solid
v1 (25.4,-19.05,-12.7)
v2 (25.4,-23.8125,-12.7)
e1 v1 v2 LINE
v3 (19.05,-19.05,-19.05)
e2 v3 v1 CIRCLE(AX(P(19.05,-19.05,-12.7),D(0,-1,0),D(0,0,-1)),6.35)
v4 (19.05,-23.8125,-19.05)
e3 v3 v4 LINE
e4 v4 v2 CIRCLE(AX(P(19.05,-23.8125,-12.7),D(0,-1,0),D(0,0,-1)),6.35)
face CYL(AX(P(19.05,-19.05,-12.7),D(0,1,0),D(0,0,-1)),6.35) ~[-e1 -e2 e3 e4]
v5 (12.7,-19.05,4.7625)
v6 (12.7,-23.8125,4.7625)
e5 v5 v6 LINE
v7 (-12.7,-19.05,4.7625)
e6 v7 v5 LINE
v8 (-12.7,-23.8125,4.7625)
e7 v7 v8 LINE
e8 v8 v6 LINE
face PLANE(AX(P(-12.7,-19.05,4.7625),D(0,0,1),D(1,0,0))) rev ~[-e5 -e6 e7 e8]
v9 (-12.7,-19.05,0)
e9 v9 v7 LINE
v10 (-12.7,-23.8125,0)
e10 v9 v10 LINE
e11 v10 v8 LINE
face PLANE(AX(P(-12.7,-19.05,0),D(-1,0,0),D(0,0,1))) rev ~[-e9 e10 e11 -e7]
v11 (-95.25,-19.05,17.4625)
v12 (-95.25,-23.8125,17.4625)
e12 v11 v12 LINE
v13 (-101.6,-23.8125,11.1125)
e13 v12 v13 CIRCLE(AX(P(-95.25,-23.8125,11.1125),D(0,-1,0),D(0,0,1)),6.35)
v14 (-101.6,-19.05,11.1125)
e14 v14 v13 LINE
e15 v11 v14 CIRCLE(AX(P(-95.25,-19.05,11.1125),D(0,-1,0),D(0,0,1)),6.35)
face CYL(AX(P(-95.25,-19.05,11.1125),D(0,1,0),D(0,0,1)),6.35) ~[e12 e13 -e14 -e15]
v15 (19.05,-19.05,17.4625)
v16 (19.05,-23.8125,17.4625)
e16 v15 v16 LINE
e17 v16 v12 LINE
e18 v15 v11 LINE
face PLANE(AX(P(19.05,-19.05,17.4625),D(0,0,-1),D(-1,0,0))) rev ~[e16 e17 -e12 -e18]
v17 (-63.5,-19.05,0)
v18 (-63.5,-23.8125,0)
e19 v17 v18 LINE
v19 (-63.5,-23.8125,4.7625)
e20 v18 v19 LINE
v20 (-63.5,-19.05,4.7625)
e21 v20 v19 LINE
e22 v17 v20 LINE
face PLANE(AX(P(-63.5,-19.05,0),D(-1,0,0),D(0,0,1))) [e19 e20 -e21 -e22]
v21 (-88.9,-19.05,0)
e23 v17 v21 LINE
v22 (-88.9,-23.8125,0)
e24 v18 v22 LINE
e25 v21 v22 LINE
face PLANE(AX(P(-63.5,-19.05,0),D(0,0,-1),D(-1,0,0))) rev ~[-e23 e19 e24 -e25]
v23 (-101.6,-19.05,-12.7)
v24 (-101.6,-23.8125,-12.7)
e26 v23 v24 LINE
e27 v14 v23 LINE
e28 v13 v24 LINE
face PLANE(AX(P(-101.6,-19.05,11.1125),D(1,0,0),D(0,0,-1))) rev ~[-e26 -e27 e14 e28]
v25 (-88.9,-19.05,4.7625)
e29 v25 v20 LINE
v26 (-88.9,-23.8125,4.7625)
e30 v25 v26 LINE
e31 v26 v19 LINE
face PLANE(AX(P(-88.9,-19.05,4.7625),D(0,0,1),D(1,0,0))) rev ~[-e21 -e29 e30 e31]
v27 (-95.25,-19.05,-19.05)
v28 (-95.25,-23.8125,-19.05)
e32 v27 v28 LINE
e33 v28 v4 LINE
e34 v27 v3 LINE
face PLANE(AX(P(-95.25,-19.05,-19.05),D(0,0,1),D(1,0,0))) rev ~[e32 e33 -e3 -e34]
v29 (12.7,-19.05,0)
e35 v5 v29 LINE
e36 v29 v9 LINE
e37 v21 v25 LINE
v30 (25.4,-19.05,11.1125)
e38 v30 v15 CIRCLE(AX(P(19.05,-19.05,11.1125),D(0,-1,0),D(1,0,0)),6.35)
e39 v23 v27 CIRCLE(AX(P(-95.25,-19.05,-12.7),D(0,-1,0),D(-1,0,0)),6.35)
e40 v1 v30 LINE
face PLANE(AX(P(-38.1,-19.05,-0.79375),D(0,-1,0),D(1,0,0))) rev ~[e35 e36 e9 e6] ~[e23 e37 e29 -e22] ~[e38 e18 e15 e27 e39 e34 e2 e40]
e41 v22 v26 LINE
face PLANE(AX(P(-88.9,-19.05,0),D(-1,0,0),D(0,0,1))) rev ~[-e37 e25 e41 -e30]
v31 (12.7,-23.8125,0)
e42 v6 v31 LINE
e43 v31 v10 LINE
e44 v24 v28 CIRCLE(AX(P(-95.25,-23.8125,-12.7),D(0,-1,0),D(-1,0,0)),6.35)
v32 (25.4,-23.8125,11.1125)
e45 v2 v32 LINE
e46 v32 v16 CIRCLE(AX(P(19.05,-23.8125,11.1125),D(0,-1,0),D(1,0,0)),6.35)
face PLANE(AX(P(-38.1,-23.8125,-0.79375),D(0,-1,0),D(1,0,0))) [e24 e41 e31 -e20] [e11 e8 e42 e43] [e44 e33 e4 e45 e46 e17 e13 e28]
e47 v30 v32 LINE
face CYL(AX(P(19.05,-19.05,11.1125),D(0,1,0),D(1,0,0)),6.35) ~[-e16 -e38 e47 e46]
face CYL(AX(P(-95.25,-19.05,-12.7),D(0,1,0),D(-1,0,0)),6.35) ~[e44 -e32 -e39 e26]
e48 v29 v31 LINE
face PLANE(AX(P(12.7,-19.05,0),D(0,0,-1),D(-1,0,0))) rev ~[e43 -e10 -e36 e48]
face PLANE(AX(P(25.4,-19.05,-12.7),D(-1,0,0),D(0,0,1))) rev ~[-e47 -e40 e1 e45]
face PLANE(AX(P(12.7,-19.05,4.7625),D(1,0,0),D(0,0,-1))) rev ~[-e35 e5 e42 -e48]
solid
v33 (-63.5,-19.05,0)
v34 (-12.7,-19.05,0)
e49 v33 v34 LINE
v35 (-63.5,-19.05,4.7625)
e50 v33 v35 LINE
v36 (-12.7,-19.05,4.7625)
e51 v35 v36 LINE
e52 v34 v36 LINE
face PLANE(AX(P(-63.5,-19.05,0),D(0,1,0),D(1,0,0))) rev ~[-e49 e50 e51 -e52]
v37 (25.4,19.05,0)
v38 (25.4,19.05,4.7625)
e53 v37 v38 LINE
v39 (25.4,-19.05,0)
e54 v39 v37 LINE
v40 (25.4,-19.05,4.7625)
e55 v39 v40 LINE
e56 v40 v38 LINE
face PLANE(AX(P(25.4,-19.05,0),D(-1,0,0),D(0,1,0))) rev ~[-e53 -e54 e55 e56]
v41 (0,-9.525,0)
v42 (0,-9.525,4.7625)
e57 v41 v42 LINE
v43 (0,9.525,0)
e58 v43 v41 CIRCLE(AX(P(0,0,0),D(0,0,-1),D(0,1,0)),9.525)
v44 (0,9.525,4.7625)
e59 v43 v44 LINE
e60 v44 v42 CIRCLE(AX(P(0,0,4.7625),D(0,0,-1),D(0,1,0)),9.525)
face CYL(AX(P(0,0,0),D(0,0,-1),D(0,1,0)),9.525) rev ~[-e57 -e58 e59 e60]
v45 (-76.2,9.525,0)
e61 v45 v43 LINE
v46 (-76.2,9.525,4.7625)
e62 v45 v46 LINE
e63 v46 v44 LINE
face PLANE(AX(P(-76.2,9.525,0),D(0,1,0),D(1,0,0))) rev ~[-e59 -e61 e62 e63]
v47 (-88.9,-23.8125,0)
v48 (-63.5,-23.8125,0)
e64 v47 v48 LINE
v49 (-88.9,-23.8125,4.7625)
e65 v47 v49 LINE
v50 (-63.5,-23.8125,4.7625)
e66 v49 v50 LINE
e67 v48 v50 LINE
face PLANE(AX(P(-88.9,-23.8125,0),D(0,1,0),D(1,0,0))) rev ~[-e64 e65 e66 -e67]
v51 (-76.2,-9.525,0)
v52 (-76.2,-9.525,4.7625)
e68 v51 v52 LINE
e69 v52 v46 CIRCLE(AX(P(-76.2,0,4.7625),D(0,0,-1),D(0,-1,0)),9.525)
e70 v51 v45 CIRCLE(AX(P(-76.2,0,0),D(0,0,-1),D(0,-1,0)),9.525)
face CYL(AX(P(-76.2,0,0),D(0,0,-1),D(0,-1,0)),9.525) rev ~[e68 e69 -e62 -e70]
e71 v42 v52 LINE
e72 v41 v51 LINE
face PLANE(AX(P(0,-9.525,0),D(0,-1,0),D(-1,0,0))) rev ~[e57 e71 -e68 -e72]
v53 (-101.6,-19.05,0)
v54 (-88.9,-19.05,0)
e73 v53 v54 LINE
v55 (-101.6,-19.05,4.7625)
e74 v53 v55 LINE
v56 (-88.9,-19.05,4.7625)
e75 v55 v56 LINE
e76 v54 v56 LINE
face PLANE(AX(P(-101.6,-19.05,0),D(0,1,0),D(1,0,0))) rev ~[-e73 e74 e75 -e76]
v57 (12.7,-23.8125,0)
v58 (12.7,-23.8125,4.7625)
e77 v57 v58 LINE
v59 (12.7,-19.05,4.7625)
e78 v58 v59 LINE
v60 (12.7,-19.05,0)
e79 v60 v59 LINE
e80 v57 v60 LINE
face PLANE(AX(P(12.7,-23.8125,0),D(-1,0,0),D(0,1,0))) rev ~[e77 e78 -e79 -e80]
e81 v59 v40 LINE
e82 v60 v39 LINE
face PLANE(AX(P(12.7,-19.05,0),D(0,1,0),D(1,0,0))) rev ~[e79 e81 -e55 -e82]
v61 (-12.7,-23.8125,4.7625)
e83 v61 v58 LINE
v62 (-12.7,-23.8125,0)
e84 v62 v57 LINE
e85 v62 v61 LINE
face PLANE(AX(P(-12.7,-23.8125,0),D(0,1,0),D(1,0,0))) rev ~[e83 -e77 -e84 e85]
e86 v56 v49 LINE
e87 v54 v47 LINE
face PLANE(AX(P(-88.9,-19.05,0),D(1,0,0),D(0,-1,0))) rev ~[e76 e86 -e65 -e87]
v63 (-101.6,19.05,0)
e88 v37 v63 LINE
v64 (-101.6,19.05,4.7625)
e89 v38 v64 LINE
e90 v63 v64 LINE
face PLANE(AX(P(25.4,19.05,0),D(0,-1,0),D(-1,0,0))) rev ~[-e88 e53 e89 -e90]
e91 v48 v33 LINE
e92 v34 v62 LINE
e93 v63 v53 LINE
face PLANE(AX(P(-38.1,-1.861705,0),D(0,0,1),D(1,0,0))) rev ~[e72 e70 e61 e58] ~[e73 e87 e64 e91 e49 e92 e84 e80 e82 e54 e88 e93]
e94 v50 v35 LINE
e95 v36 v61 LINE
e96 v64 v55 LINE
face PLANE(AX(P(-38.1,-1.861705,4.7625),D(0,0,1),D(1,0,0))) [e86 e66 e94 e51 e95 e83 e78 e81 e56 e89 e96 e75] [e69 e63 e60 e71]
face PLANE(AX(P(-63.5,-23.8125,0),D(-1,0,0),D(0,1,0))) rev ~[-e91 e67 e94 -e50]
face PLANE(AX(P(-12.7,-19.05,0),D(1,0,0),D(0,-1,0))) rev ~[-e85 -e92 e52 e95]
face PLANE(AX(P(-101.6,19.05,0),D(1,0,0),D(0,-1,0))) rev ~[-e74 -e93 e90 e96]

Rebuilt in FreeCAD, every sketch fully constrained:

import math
import FreeCAD as App
import Part
import Sketcher
from FreeCAD import Vector
Q = App.Units.Quantity

doc = App.newDocument("Part")
body = doc.addObject("PartDesign::Body", "Body")

sketch1 = doc.addObject("Sketcher::SketchObject", "Sketch")
body.addObject(sketch1)
sketch1.AttachmentSupport = (doc.XY_Plane, [""])
sketch1.MapMode = "FlatFace"
sketch1.addGeometry(Part.LineSegment(Vector(25.4, 19.1, 0), Vector(-101.6, 19.1, 0)), False)
sketch1.addGeometry(Part.LineSegment(Vector(-101.6, 19.1, 0), Vector(-101.6, -19.1, 0)), False)
sketch1.addGeometry(Part.LineSegment(Vector(-101.6, -19.1, 0), Vector(-88.9, -19.1, 0)), False)
sketch1.addGeometry(Part.LineSegment(Vector(-88.9, -19.1, 0), Vector(-88.9, -23.8, 0)), False)
sketch1.addGeometry(Part.LineSegment(Vector(-88.9, -23.8, 0), Vector(-63.5, -23.8, 0)), False)
sketch1.addGeometry(Part.LineSegment(Vector(-63.5, -23.8, 0), Vector(-63.5, -19.1, 0)), False)
sketch1.addGeometry(Part.LineSegment(Vector(-63.5, -19.1, 0), Vector(-12.7, -19.1, 0)), False)
sketch1.addGeometry(Part.LineSegment(Vector(-12.7, -19.1, 0), Vector(-12.7, -23.8, 0)), False)
sketch1.addGeometry(Part.LineSegment(Vector(-12.7, -23.8, 0), Vector(12.7, -23.8, 0)), False)
sketch1.addGeometry(Part.LineSegment(Vector(12.7, -23.8, 0), Vector(12.7, -19.1, 0)), False)
sketch1.addGeometry(Part.LineSegment(Vector(12.7, -19.1, 0), Vector(25.4, -19.1, 0)), False)
sketch1.addGeometry(Part.LineSegment(Vector(25.4, -19.1, 0), Vector(25.4, 19.1, 0)), False)
sketch1.addGeometry(Part.LineSegment(Vector(0, -9.5, 0), Vector(-76.2, -9.5, 0)), False)
sketch1.addGeometry(Part.ArcOfCircle(Part.Circle(Vector(-76.2, 0, 0), Vector(0, 0, 1), 9.5), math.radians(90), math.radians(270)), False)
sketch1.addGeometry(Part.LineSegment(Vector(-76.2, 9.5, 0), Vector(0, 9.5, 0)), False)
sketch1.addGeometry(Part.ArcOfCircle(Part.Circle(Vector(0, 0, 0), Vector(0, 0, 1), 9.5), math.radians(-90), math.radians(90)), False)
sketch1.addConstraint(Sketcher.Constraint("Coincident", 0, 2, 1, 1))
sketch1.addConstraint(Sketcher.Constraint("Coincident", 1, 2, 2, 1))
sketch1.addConstraint(Sketcher.Constraint("Coincident", 2, 2, 3, 1))
sketch1.addConstraint(Sketcher.Constraint("Coincident", 3, 2, 4, 1))
sketch1.addConstraint(Sketcher.Constraint("Coincident", 4, 2, 5, 1))
sketch1.addConstraint(Sketcher.Constraint("Coincident", 5, 2, 6, 1))
sketch1.addConstraint(Sketcher.Constraint("Coincident", 6, 2, 7, 1))
sketch1.addConstraint(Sketcher.Constraint("Coincident", 7, 2, 8, 1))
sketch1.addConstraint(Sketcher.Constraint("Coincident", 8, 2, 9, 1))
sketch1.addConstraint(Sketcher.Constraint("Coincident", 9, 2, 10, 1))
sketch1.addConstraint(Sketcher.Constraint("Coincident", 10, 2, 11, 1))
sketch1.addConstraint(Sketcher.Constraint("Coincident", 11, 2, 0, 1))
sketch1.addConstraint(Sketcher.Constraint("Tangent", 12, 2, 13, 2))
sketch1.addConstraint(Sketcher.Constraint("Tangent", 13, 1, 14, 1))
sketch1.addConstraint(Sketcher.Constraint("Tangent", 14, 2, 15, 2))
sketch1.addConstraint(Sketcher.Constraint("Tangent", 15, 1, 12, 1))
sketch1.addConstraint(Sketcher.Constraint("Horizontal", 0))
sketch1.addConstraint(Sketcher.Constraint("Vertical", 1))
sketch1.addConstraint(Sketcher.Constraint("Horizontal", 2))
sketch1.addConstraint(Sketcher.Constraint("Vertical", 3))
sketch1.addConstraint(Sketcher.Constraint("Horizontal", 4))
sketch1.addConstraint(Sketcher.Constraint("Vertical", 5))
sketch1.addConstraint(Sketcher.Constraint("Horizontal", 6))
sketch1.addConstraint(Sketcher.Constraint("Vertical", 7))
sketch1.addConstraint(Sketcher.Constraint("Horizontal", 8))
sketch1.addConstraint(Sketcher.Constraint("Vertical", 9))
sketch1.addConstraint(Sketcher.Constraint("Horizontal", 10))
sketch1.addConstraint(Sketcher.Constraint("Vertical", 11))
sketch1.addConstraint(Sketcher.Constraint("Horizontal", 12))
sketch1.addConstraint(Sketcher.Constraint("Horizontal", 14))
sketch1.addConstraint(Sketcher.Constraint("Coincident", 15, 3, -1, 1))
sketch1.addConstraint(Sketcher.Constraint("Symmetric", 6, 2, 9, 2, -2))
sketch1.addConstraint(Sketcher.Constraint("Horizontal", 2, 2, 5, 2))
sketch1.addConstraint(Sketcher.Constraint("Horizontal", 4, 2, 7, 2))
sketch1.addConstraint(Sketcher.Constraint("Equal", 4, 8))
sketch1.addConstraint(Sketcher.Constraint("Equal", 2, 10))
sketch1.addConstraint(Sketcher.Constraint("DistanceX", 0, 2, 0, 1, Q("5 in")))
sketch1.addConstraint(Sketcher.Constraint("DistanceX", 4, 1, 4, 2, Q("1 in")))
sketch1.addConstraint(Sketcher.Constraint("DistanceX", 6, 1, 6, 2, Q("2 in")))
sketch1.addConstraint(Sketcher.Constraint("DistanceX", 12, 2, 12, 1, Q("3 in")))
sketch1.addConstraint(Sketcher.Constraint("DistanceY", 1, 2, 1, 1, Q("1.5 in")))
sketch1.addConstraint(Sketcher.Constraint("Radius", 13, Q("0.375 in")))
sketch1.addConstraint(Sketcher.Constraint("DistanceY", 3, 2, 3, 1, Q("0.1875 in")))
sketch1.addConstraint(Sketcher.Constraint("DistanceY", -1, 1, 0, 2, Q("0.75 in")))
pad1 = doc.addObject("PartDesign::Pad", "Pad")
body.addObject(pad1)
pad1.Profile = sketch1
pad1.Length = Q("0.1875 in")
body2 = doc.addObject("PartDesign::Body", "Body001")

sketch2 = doc.addObject("Sketcher::SketchObject", "Sketch001")
body2.addObject(sketch2)
sketch2.AttachmentSupport = (doc.getObject("XZ_Plane001"), [""])
sketch2.MapMode = "FlatFace"
sketch2.AttachmentOffset = App.Placement(Vector(0, 0, 0.75 * 25.4), App.Rotation())
sketch2.addGeometry(Part.ArcOfCircle(Part.Circle(Vector(-95.2, 11.1, 0), Vector(0, 0, 1), 6.3), math.radians(90), math.radians(180)), False)
sketch2.addGeometry(Part.LineSegment(Vector(-101.6, 11.1, 0), Vector(-101.6, -12.7, 0)), False)
sketch2.addGeometry(Part.ArcOfCircle(Part.Circle(Vector(-95.2, -12.7, 0), Vector(0, 0, 1), 6.3), math.radians(180), math.radians(270)), False)
sketch2.addGeometry(Part.LineSegment(Vector(-95.2, -19.1, 0), Vector(19.1, -19.1, 0)), False)
sketch2.addGeometry(Part.ArcOfCircle(Part.Circle(Vector(19.1, -12.7, 0), Vector(0, 0, 1), 6.3), math.radians(-90), math.radians(0)), False)
sketch2.addGeometry(Part.LineSegment(Vector(25.4, -12.7, 0), Vector(25.4, 11.1, 0)), False)
sketch2.addGeometry(Part.ArcOfCircle(Part.Circle(Vector(19.1, 11.1, 0), Vector(0, 0, 1), 6.3), math.radians(0), math.radians(90)), False)
sketch2.addGeometry(Part.LineSegment(Vector(19.1, 17.5, 0), Vector(-95.2, 17.5, 0)), False)
sketch2.addGeometry(Part.LineSegment(Vector(12.7, 0, 0), Vector(-12.7, 0, 0)), False)
sketch2.addGeometry(Part.LineSegment(Vector(-12.7, 0, 0), Vector(-12.7, 4.8, 0)), False)
sketch2.addGeometry(Part.LineSegment(Vector(-12.7, 4.8, 0), Vector(12.7, 4.8, 0)), False)
sketch2.addGeometry(Part.LineSegment(Vector(12.7, 4.8, 0), Vector(12.7, 0, 0)), False)
sketch2.addGeometry(Part.LineSegment(Vector(-63.5, 0, 0), Vector(-88.9, 0, 0)), False)
sketch2.addGeometry(Part.LineSegment(Vector(-88.9, 0, 0), Vector(-88.9, 4.8, 0)), False)
sketch2.addGeometry(Part.LineSegment(Vector(-88.9, 4.8, 0), Vector(-63.5, 4.8, 0)), False)
sketch2.addGeometry(Part.LineSegment(Vector(-63.5, 4.8, 0), Vector(-63.5, 0, 0)), False)
sketch2.addConstraint(Sketcher.Constraint("Tangent", 0, 2, 1, 1))
sketch2.addConstraint(Sketcher.Constraint("Tangent", 1, 2, 2, 1))
sketch2.addConstraint(Sketcher.Constraint("Tangent", 2, 2, 3, 1))
sketch2.addConstraint(Sketcher.Constraint("Tangent", 3, 2, 4, 1))
sketch2.addConstraint(Sketcher.Constraint("Tangent", 4, 2, 5, 1))
sketch2.addConstraint(Sketcher.Constraint("Tangent", 5, 2, 6, 1))
sketch2.addConstraint(Sketcher.Constraint("Tangent", 6, 2, 7, 1))
sketch2.addConstraint(Sketcher.Constraint("Tangent", 7, 2, 0, 1))
sketch2.addConstraint(Sketcher.Constraint("Coincident", 8, 2, 9, 1))
sketch2.addConstraint(Sketcher.Constraint("Coincident", 9, 2, 10, 1))
sketch2.addConstraint(Sketcher.Constraint("Coincident", 10, 2, 11, 1))
sketch2.addConstraint(Sketcher.Constraint("Coincident", 11, 2, 8, 1))
sketch2.addConstraint(Sketcher.Constraint("Coincident", 12, 2, 13, 1))
sketch2.addConstraint(Sketcher.Constraint("Coincident", 13, 2, 14, 1))
sketch2.addConstraint(Sketcher.Constraint("Coincident", 14, 2, 15, 1))
sketch2.addConstraint(Sketcher.Constraint("Coincident", 15, 2, 12, 1))
sketch2.addConstraint(Sketcher.Constraint("Vertical", 1))
sketch2.addConstraint(Sketcher.Constraint("Horizontal", 3))
sketch2.addConstraint(Sketcher.Constraint("Vertical", 5))
sketch2.addConstraint(Sketcher.Constraint("Horizontal", 7))
sketch2.addConstraint(Sketcher.Constraint("Horizontal", 8))
sketch2.addConstraint(Sketcher.Constraint("Vertical", 9))
sketch2.addConstraint(Sketcher.Constraint("Horizontal", 10))
sketch2.addConstraint(Sketcher.Constraint("Vertical", 11))
sketch2.addConstraint(Sketcher.Constraint("Horizontal", 12))
sketch2.addConstraint(Sketcher.Constraint("Vertical", 13))
sketch2.addConstraint(Sketcher.Constraint("Horizontal", 14))
sketch2.addConstraint(Sketcher.Constraint("Vertical", 15))
sketch2.addConstraint(Sketcher.Constraint("Equal", 0, 2))
sketch2.addConstraint(Sketcher.Constraint("Equal", 2, 4))
sketch2.addConstraint(Sketcher.Constraint("Equal", 4, 6))
sketch2.addConstraint(Sketcher.Constraint("Symmetric", 8, 2, 11, 2, -1, 1))
sketch2.addConstraint(Sketcher.Constraint("PointOnObject", 12, 2, -1))
sketch2.addConstraint(Sketcher.Constraint("Horizontal", 10, 2, 13, 2))
sketch2.addConstraint(Sketcher.Constraint("Equal", 10, 12))
sketch2.addConstraint(Sketcher.Constraint("DistanceX", 8, 2, 8, 1, Q("1 in")))
sketch2.addConstraint(Sketcher.Constraint("Radius", 0, Q("0.25 in")))
sketch2.addConstraint(Sketcher.Constraint("DistanceX", 3, 1, 3, 2, Q("4.5 in")))
sketch2.addConstraint(Sketcher.Constraint("DistanceX", 0, 2, -1, 1, Q("4 in")))
sketch2.addConstraint(Sketcher.Constraint("DistanceY", 2, 3, -1, 1, Q("0.5 in")))
sketch2.addConstraint(Sketcher.Constraint("DistanceX", 12, 2, -1, 1, Q("3.5 in")))
sketch2.addConstraint(Sketcher.Constraint("DistanceY", 9, 2, 6, 2, Q("0.5 in")))
sketch2.addConstraint(Sketcher.Constraint("DistanceY", 1, 2, 1, 1, Q("0.9375 in")))
pad2 = doc.addObject("PartDesign::Pad", "Pad001")
body2.addObject(pad2)
pad2.Profile = sketch2
pad2.Length = Q("0.1875 in")

doc.recompute()
